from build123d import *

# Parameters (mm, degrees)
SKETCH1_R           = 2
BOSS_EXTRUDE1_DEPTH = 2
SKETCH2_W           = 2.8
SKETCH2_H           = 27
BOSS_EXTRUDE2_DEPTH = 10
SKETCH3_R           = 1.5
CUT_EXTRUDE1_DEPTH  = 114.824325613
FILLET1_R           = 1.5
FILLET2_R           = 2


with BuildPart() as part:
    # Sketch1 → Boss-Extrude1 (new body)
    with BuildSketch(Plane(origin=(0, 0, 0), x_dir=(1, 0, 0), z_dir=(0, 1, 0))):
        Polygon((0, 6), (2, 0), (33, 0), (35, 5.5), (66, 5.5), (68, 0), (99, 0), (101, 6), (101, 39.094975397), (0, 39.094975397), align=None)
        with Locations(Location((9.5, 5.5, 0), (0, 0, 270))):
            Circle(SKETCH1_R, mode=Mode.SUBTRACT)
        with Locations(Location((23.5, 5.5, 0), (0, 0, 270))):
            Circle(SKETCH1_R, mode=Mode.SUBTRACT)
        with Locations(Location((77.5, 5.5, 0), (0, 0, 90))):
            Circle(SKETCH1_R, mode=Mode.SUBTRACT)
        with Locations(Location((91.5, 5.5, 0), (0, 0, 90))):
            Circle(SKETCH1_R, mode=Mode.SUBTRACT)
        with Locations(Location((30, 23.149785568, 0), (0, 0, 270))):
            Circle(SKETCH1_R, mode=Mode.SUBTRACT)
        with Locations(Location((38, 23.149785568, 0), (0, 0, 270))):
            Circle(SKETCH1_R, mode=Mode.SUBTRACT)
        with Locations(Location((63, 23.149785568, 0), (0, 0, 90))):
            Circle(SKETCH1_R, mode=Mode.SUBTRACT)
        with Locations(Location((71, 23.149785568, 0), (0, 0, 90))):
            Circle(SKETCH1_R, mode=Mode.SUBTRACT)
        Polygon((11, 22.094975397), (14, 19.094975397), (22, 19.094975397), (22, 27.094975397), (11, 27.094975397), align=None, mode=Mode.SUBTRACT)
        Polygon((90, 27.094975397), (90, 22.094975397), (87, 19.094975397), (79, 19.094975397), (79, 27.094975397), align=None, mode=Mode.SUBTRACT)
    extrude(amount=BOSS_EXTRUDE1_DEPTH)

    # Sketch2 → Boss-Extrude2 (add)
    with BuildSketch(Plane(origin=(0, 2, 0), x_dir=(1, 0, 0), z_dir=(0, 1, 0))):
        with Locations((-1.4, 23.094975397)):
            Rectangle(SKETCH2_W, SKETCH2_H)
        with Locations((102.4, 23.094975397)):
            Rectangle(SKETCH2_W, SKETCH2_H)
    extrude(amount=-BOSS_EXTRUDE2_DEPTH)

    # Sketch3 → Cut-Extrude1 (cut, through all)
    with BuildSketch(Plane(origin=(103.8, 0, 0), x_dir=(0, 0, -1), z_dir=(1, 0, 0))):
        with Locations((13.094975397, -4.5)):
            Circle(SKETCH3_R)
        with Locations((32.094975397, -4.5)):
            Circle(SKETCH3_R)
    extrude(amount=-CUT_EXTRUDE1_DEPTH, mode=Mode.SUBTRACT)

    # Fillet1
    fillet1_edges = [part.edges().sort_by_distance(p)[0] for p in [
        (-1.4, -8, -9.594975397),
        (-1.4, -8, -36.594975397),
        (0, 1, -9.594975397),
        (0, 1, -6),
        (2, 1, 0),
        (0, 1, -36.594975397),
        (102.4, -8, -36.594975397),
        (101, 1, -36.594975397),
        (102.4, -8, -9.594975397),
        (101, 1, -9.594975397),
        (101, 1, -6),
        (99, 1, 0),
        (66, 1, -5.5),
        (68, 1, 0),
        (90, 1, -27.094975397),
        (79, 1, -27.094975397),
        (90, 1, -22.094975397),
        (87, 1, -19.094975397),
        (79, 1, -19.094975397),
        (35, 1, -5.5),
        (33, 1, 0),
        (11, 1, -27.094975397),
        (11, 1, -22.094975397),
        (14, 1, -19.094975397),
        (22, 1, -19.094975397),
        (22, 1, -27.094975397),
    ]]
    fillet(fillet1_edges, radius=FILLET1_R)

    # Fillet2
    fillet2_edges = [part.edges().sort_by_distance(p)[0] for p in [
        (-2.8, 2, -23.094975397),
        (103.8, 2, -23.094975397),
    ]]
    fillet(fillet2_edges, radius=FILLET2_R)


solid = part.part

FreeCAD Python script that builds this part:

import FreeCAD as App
import Part
import Sketcher


def edges_at(feature, points):
    """Names of the edges that pass closest to the given points."""
    edges = feature.Shape.Edges
    near = lambda p: min(range(len(edges)), key=lambda i: edges[i].distToShape(Part.Vertex(*p))[0])
    return sorted({f"Edge{near(p) + 1}" for p in points})

doc = App.newDocument("Part")
body = doc.addObject("PartDesign::Body", "Body")

# Sketch on XZ plane
sketch1 = body.newObject("Sketcher::SketchObject", "Sketch")
sketch1.AttachmentSupport = (doc.getObject("XZ_Plane"), [""])
sketch1.MapMode = "FlatFace"
sketch1.addGeometry(Part.LineSegment(App.Vector(0, -6, 0), App.Vector(2, 0, 0)), False)
sketch1.addGeometry(Part.LineSegment(App.Vector(2, 0, 0), App.Vector(33, 0, 0)), False)
sketch1.addGeometry(Part.LineSegment(App.Vector(33, 0, 0), App.Vector(35, -5.5, 0)), False)
sketch1.addGeometry(Part.LineSegment(App.Vector(35, -5.5, 0), App.Vector(66, -5.5, 0)), False)
sketch1.addGeometry(Part.LineSegment(App.Vector(66, -5.5, 0), App.Vector(68, 0, 0)), False)
sketch1.addGeometry(Part.LineSegment(App.Vector(68, 0, 0), App.Vector(99, 0, 0)), False)
sketch1.addGeometry(Part.LineSegment(App.Vector(99, 0, 0), App.Vector(101, -6, 0)), False)
sketch1.addGeometry(Part.LineSegment(App.Vector(101, -6, 0), App.Vector(101, -39.1, 0)), False)
sketch1.addGeometry(Part.LineSegment(App.Vector(101, -39.1, 0), App.Vector(0, -39.1, 0)), False)
sketch1.addGeometry(Part.LineSegment(App.Vector(0, -39.1, 0), App.Vector(0, -6, 0)), False)
sketch1.addGeometry(Part.Circle(App.Vector(9.5, -5.5, 0), App.Vector(0, 0, 1), 2), False)
sketch1.addGeometry(Part.Circle(App.Vector(23.5, -5.5, 0), App.Vector(0, 0, 1), 2), False)
sketch1.addGeometry(Part.Circle(App.Vector(77.5, -5.5, 0), App.Vector(0, 0, 1), 2), False)
sketch1.addGeometry(Part.Circle(App.Vector(91.5, -5.5, 0), App.Vector(0, 0, 1), 2), False)
sketch1.addGeometry(Part.LineSegment(App.Vector(14, -19.1, 0), App.Vector(11, -22.1, 0)), False)
sketch1.addGeometry(Part.LineSegment(App.Vector(11, -22.1, 0), App.Vector(11, -27.1, 0)), False)
sketch1.addGeometry(Part.LineSegment(App.Vector(11, -27.1, 0), App.Vector(22, -27.1, 0)), False)
sketch1.addGeometry(Part.LineSegment(App.Vector(22, -27.1, 0), App.Vector(22, -19.1, 0)), False)
sketch1.addGeometry(Part.LineSegment(App.Vector(22, -19.1, 0), App.Vector(14, -19.1, 0)), False)
sketch1.addGeometry(Part.Circle(App.Vector(30, -23.1, 0), App.Vector(0, 0, 1), 2), False)
sketch1.addGeometry(Part.Circle(App.Vector(38, -23.1, 0), App.Vector(0, 0, 1), 2), False)
sketch1.addGeometry(Part.Circle(App.Vector(63, -23.1, 0), App.Vector(0, 0, 1), 2), False)
sketch1.addGeometry(Part.Circle(App.Vector(71, -23.1, 0), App.Vector(0, 0, 1), 2), False)
sketch1.addGeometry(Part.LineSegment(App.Vector(79, -27.1, 0), App.Vector(90, -27.1, 0)), False)
sketch1.addGeometry(Part.LineSegment(App.Vector(90, -27.1, 0), App.Vector(90, -22.1, 0)), False)
sketch1.addGeometry(Part.LineSegment(App.Vector(90, -22.1, 0), App.Vector(87, -19.1, 0)), False)
sketch1.addGeometry(Part.LineSegment(App.Vector(87, -19.1, 0), App.Vector(79, -19.1, 0)), False)
sketch1.addGeometry(Part.LineSegment(App.Vector(79, -19.1, 0), App.Vector(79, -27.1, 0)), False)
sketch1.addConstraint(Sketcher.Constraint("Coincident", 0, 2, 1, 1))
sketch1.addConstraint(Sketcher.Constraint("Coincident", 1, 2, 2, 1))
sketch1.addConstraint(Sketcher.Constraint("Coincident", 2, 2, 3, 1))
sketch1.addConstraint(Sketcher.Constraint("Coincident", 3, 2, 4, 1))
sketch1.addConstraint(Sketcher.Constraint("Coincident", 4, 2, 5, 1))
sketch1.addConstraint(Sketcher.Constraint("Coincident", 5, 2, 6, 1))
sketch1.addConstraint(Sketcher.Constraint("Coincident", 6, 2, 7, 1))
sketch1.addConstraint(Sketcher.Constraint("Coincident", 7, 2, 8, 1))
sketch1.addConstraint(Sketcher.Constraint("Coincident", 8, 2, 9, 1))
sketch1.addConstraint(Sketcher.Constraint("Coincident", 9, 2, 0, 1))
sketch1.addConstraint(Sketcher.Constraint("Coincident", 14, 2, 15, 1))
sketch1.addConstraint(Sketcher.Constraint("Coincident", 15, 2, 16, 1))
sketch1.addConstraint(Sketcher.Constraint("Coincident", 16, 2, 17, 1))
sketch1.addConstraint(Sketcher.Constraint("Coincident", 17, 2, 18, 1))
sketch1.addConstraint(Sketcher.Constraint("Coincident", 18, 2, 14, 1))
sketch1.addConstraint(Sketcher.Constraint("Coincident", 23, 2, 24, 1))
sketch1.addConstraint(Sketcher.Constraint("Coincident", 24, 2, 25, 1))
sketch1.addConstraint(Sketcher.Constraint("Coincident", 25, 2, 26, 1))
sketch1.addConstraint(Sketcher.Constraint("Coincident", 26, 2, 27, 1))
sketch1.addConstraint(Sketcher.Constraint("Coincident", 27, 2, 23, 1))
sketch1.addConstraint(Sketcher.Constraint("Horizontal", 1))
sketch1.addConstraint(Sketcher.Constraint("Horizontal", 3))
sketch1.addConstraint(Sketcher.Constraint("Horizontal", 5))
sketch1.addConstraint(Sketcher.Constraint("Vertical", 7))
sketch1.addConstraint(Sketcher.Constraint("Horizontal", 8))
sketch1.addConstraint(Sketcher.Constraint("Vertical", 9))
sketch1.addConstraint(Sketcher.Constraint("Vertical", 15))
sketch1.addConstraint(Sketcher.Constraint("Horizontal", 16))
sketch1.addConstraint(Sketcher.Constraint("Vertical", 17))
sketch1.addConstraint(Sketcher.Constraint("Horizontal", 18))
sketch1.addConstraint(Sketcher.Constraint("Horizontal", 23))
sketch1.addConstraint(Sketcher.Constraint("Vertical", 24))
sketch1.addConstraint(Sketcher.Constraint("Horizontal", 26))
sketch1.addConstraint(Sketcher.Constraint("Vertical", 27))
sketch1.addConstraint(Sketcher.Constraint("Equal", 10, 11))
sketch1.addConstraint(Sketcher.Constraint("Equal", 11, 12))
sketch1.addConstraint(Sketcher.Constraint("Equal", 12, 13))
sketch1.addConstraint(Sketcher.Constraint("Equal", 13, 19))
sketch1.addConstraint(Sketcher.Constraint("Equal", 19, 20))
sketch1.addConstraint(Sketcher.Constraint("Equal", 20, 21))
sketch1.addConstraint(Sketcher.Constraint("Equal", 21, 22))
sketch1.addConstraint(Sketcher.Constraint("PointOnObject", 0, 2, -1))
sketch1.addConstraint(Sketcher.Constraint("PointOnObject", 4, 2, -1))
sketch1.addConstraint(Sketcher.Constraint("PointOnObject", 8, 2, -2))
sketch1.addConstraint(Sketcher.Constraint("Perpendicular", 14, 25))
sketch1.addConstraint(Sketcher.Constraint("Horizontal", 10, 3, 11, 3))
sketch1.addConstraint(Sketcher.Constraint("Horizontal", 11, 3, 12, 3))
sketch1.addConstraint(Sketcher.Constraint("Horizontal", 12, 3, 13, 3))
sketch1.addConstraint(Sketcher.Constraint("Horizontal", 19, 3, 20, 3))
sketch1.addConstraint(Sketcher.Constraint("Horizontal", 20, 3, 21, 3))
sketch1.addConstraint(Sketcher.Constraint("Horizontal", 21, 3, 22, 3))
sketch1.addConstraint(Sketcher.Constraint("Horizontal", 13, 3, 2, 2))
sketch1.addConstraint(Sketcher.Constraint("Horizontal", 6, 2, 9, 2))
sketch1.addConstraint(Sketcher.Constraint("Horizontal", 16, 2, 23, 2))
sketch1.addConstraint(Sketcher.Constraint("Horizontal", 14, 2, 24, 2))
sketch1.addConstraint(Sketcher.Constraint("Horizontal", 18, 2, 25, 2))
sketch1.addConstraint(Sketcher.Constraint("Equal", 1, 3))
sketch1.addConstraint(Sketcher.Constraint("Equal", 3, 5))
sketch1.addConstraint(Sketcher.Constraint("Equal", 16, 23))
sketch1.addConstraint(Sketcher.Constraint("Equal", 18, 26))
sketch1.addConstraint(Sketcher.Constraint("Equal", 26, 17))
sketch1.addConstraint(Sketcher.Constraint("Equal", 2, 4))
sketch1.addConstraint(Sketcher.Constraint("Equal", 0, 6))
sketch1.addConstraint(Sketcher.Constraint("Diameter", 10, 4.0))
sketch1.addConstraint(Sketcher.Constraint("DistanceX", 1, 1, 1, 2, 31.0))
sketch1.addConstraint(Sketcher.Constraint("DistanceX", 8, 2, 8, 1, 101.0))
sketch1.addConstraint(Sketcher.Constraint("DistanceX", 16, 1, 16, 2, 11.0))
sketch1.addConstraint(Sketcher.Constraint("DistanceX", 18, 2, 18, 1, 8.0))
sketch1.addConstraint(Sketcher.Constraint("DistanceX", -1, 1, 19, 3, 30.0))
sketch1.addConstraint(Sketcher.Constraint("DistanceX", -1, 1, 20, 3, 38.0))
sketch1.addConstraint(Sketcher.Constraint("DistanceX", -1, 1, 21, 3, 63.0))
sketch1.addConstraint(Sketcher.Constraint("DistanceX", -1, 1, 22, 3, 71.0))
sketch1.addConstraint(Sketcher.Constraint("DistanceX", -1, 1, 0, 2, 2.0))
sketch1.addConstraint(Sketcher.Constraint("DistanceY", 6, 2, -1, 1, 6.0))
sketch1.addConstraint(Sketcher.Constraint("DistanceX", -1, 1, 14, 2, 11.0))
sketch1.addConstraint(Sketcher.Constraint("DistanceX", -1, 1, 23, 2, 90.0))
sketch1.addConstraint(Sketcher.Constraint("DistanceX", 10, 3, 11, 3, 14.0))
sketch1.addConstraint(Sketcher.Constraint("DistanceX", 11, 3, 12, 3, 54.0))
sketch1.addConstraint(Sketcher.Constraint("DistanceX", 12, 3, 13, 3, 14.0))
sketch1.addConstraint(Sketcher.Constraint("DistanceY", 8, 2, 14, 2, 17.0))
sketch1.addConstraint(Sketcher.Constraint("DistanceX", -1, 1, 10, 3, 9.5))
sketch1.addConstraint(Sketcher.Constraint("DistanceY", 10, 3, -1, 1, 5.5))
sketch1.addConstraint(Sketcher.Constraint("DistanceY", 7, 2, 7, 1, 33.094975))
sketch1.addConstraint(Sketcher.Constraint("DistanceY", 7, 2, 22, 3, 15.94519))
pad1 = body.newObject("PartDesign::Pad", "Pad")
pad1.Profile = sketch1
pad1.Length = 2
pad1.Reversed = True

# Sketch on XZ plane
sketch2 = body.newObject("Sketcher::SketchObject", "Sketch001")
sketch2.AttachmentSupport = (doc.getObject("XZ_Plane"), [""])
sketch2.MapMode = "FlatFace"
sketch2.AttachmentOffset = App.Placement(App.Vector(0, 0, -2), App.Rotation())
sketch2.addGeometry(Part.LineSegment(App.Vector(-2.8, -36.6, 0), App.Vector(-2.8, -9.6, 0)), False)
sketch2.addGeometry(Part.LineSegment(App.Vector(-2.8, -9.6, 0), App.Vector(0, -9.6, 0)), False)
sketch2.addGeometry(Part.LineSegment(App.Vector(0, -9.6, 0), App.Vector(0, -36.6, 0)), False)
sketch2.addGeometry(Part.LineSegment(App.Vector(0, -36.6, 0), App.Vector(-2.8, -36.6, 0)), False)
sketch2.addGeometry(Part.LineSegment(App.Vector(101, -36.6, 0), App.Vector(101, -9.6, 0)), False)
sketch2.addGeometry(Part.LineSegment(App.Vector(101, -9.6, 0), App.Vector(103.8, -9.6, 0)), False)
sketch2.addGeometry(Part.LineSegment(App.Vector(103.8, -9.6, 0), App.Vector(103.8, -36.6, 0)), False)
sketch2.addGeometry(Part.LineSegment(App.Vector(103.8, -36.6, 0), App.Vector(101, -36.6, 0)), False)
sketch2.addConstraint(Sketcher.Constraint("Coincident", 0, 2, 1, 1))
sketch2.addConstraint(Sketcher.Constraint("Coincident", 1, 2, 2, 1))
sketch2.addConstraint(Sketcher.Constraint("Coincident", 2, 2, 3, 1))
sketch2.addConstraint(Sketcher.Constraint("Coincident", 3, 2, 0, 1))
sketch2.addConstraint(Sketcher.Constraint("Coincident", 4, 2, 5, 1))
sketch2.addConstraint(Sketcher.Constraint("Coincident", 5, 2, 6, 1))
sketch2.addConstraint(Sketcher.Constraint("Coincident", 6, 2, 7, 1))
sketch2.addConstraint(Sketcher.Constraint("Coincident", 7, 2, 4, 1))
sketch2.addConstraint(Sketcher.Constraint("Vertical", 0))
sketch2.addConstraint(Sketcher.Constraint("Horizontal", 1))
sketch2.addConstraint(Sketcher.Constraint("Vertical", 2))
sketch2.addConstraint(Sketcher.Constraint("Horizontal", 3))
sketch2.addConstraint(Sketcher.Constraint("Vertical", 4))
sketch2.addConstraint(Sketcher.Constraint("Horizontal", 5))
sketch2.addConstraint(Sketcher.Constraint("Vertical", 6))
sketch2.addConstraint(Sketcher.Constraint("Horizontal", 7))
sketch2.addConstraint(Sketcher.Constraint("PointOnObject", 1, 2, -2))
sketch2.addConstraint(Sketcher.Constraint("Horizontal", 1, 2, 4, 2))
sketch2.addConstraint(Sketcher.Constraint("Horizontal", 3, 2, 6, 2))
sketch2.addConstraint(Sketcher.Constraint("Equal", 3, 5))
sketch2.addConstraint(Sketcher.Constraint("DistanceY", 0, 1, 0, 2, 27.0))
sketch2.addConstraint(Sketcher.Constraint("DistanceX", 1, 1, 1, 2, 2.8))
sketch2.addConstraint(Sketcher.Constraint("DistanceX", -1, 1, 4, 2, 101.0))
sketch2.addConstraint(Sketcher.Constraint("DistanceY", 0, 2, -1, 1, 9.594975))
pad2 = body.newObject("PartDesign::Pad", "Pad001")
pad2.Profile = sketch2
pad2.Length = 10

# Sketch on YZ plane
sketch3 = body.newObject("Sketcher::SketchObject", "Sketch002")
sketch3.AttachmentSupport = (doc.getObject("YZ_Plane"), [""])
sketch3.MapMode = "FlatFace"
sketch3.AttachmentOffset = App.Placement(App.Vector(0, 0, 103.8), App.Rotation())
sketch3.addGeometry(Part.Circle(App.Vector(-4.5, -13.1, 0), App.Vector(0, 0, 1), 1.5), False)
sketch3.addGeometry(Part.Circle(App.Vector(-4.5, -32.1, 0), App.Vector(0, 0, 1), 1.5), False)
sketch3.addConstraint(Sketcher.Constraint("Equal", 0, 1))
sketch3.addConstraint(Sketcher.Constraint("Vertical", 0, 3, 1, 3))
sketch3.addConstraint(Sketcher.Constraint("Diameter", 0, 3.0))
sketch3.addConstraint(Sketcher.Constraint("DistanceY", 1, 3, 0, 3, 19.0))
sketch3.addConstraint(Sketcher.Constraint("DistanceX", 0, 3, -1, 1, 4.5))
sketch3.addConstraint(Sketcher.Constraint("DistanceY", 0, 3, -1, 1, 13.094975))
pocket1 = body.newObject("PartDesign::Pocket", "Pocket")
pocket1.Profile = sketch3
pocket1.Type = "ThroughAll"
doc.recompute()

fillet = body.newObject("PartDesign::Fillet", "Fillet")
fillet.Base = (pocket1, edges_at(pocket1, [
    (-1.4, -8, -9.595),
    (-1.4, -8, -36.595),
    (0, 1, -9.595),
    (0, 1, -6),
    (2, 1, 0),
    (0, 1, -36.595),
    (102.4, -8, -36.595),
    (101, 1, -36.595),
    (102.4, -8, -9.595),
    (101, 1, -9.595),
    (101, 1, -6),
    (99, 1, 0),
    (66, 1, -5.5),
    (68, 1, 0),
    (90, 1, -27.095),
    (79, 1, -27.095),
    (90, 1, -22.095),
    (87, 1, -19.095),
    (79, 1, -19.095),
    (35, 1, -5.5),
    (33, 1, 0),
    (11, 1, -27.095),
    (11, 1, -22.095),
    (14, 1, -19.095),
    (22, 1, -19.095),
    (22, 1, -27.095),
]))
fillet.Radius = 1.5
doc.recompute()

fillet2 = body.newObject("PartDesign::Fillet", "Fillet001")
fillet2.Base = (fillet, edges_at(fillet, [(-2.8, 2, -23.095), (103.8, 2, -23.095)]))
fillet2.Radius = 2

doc.recompute()
